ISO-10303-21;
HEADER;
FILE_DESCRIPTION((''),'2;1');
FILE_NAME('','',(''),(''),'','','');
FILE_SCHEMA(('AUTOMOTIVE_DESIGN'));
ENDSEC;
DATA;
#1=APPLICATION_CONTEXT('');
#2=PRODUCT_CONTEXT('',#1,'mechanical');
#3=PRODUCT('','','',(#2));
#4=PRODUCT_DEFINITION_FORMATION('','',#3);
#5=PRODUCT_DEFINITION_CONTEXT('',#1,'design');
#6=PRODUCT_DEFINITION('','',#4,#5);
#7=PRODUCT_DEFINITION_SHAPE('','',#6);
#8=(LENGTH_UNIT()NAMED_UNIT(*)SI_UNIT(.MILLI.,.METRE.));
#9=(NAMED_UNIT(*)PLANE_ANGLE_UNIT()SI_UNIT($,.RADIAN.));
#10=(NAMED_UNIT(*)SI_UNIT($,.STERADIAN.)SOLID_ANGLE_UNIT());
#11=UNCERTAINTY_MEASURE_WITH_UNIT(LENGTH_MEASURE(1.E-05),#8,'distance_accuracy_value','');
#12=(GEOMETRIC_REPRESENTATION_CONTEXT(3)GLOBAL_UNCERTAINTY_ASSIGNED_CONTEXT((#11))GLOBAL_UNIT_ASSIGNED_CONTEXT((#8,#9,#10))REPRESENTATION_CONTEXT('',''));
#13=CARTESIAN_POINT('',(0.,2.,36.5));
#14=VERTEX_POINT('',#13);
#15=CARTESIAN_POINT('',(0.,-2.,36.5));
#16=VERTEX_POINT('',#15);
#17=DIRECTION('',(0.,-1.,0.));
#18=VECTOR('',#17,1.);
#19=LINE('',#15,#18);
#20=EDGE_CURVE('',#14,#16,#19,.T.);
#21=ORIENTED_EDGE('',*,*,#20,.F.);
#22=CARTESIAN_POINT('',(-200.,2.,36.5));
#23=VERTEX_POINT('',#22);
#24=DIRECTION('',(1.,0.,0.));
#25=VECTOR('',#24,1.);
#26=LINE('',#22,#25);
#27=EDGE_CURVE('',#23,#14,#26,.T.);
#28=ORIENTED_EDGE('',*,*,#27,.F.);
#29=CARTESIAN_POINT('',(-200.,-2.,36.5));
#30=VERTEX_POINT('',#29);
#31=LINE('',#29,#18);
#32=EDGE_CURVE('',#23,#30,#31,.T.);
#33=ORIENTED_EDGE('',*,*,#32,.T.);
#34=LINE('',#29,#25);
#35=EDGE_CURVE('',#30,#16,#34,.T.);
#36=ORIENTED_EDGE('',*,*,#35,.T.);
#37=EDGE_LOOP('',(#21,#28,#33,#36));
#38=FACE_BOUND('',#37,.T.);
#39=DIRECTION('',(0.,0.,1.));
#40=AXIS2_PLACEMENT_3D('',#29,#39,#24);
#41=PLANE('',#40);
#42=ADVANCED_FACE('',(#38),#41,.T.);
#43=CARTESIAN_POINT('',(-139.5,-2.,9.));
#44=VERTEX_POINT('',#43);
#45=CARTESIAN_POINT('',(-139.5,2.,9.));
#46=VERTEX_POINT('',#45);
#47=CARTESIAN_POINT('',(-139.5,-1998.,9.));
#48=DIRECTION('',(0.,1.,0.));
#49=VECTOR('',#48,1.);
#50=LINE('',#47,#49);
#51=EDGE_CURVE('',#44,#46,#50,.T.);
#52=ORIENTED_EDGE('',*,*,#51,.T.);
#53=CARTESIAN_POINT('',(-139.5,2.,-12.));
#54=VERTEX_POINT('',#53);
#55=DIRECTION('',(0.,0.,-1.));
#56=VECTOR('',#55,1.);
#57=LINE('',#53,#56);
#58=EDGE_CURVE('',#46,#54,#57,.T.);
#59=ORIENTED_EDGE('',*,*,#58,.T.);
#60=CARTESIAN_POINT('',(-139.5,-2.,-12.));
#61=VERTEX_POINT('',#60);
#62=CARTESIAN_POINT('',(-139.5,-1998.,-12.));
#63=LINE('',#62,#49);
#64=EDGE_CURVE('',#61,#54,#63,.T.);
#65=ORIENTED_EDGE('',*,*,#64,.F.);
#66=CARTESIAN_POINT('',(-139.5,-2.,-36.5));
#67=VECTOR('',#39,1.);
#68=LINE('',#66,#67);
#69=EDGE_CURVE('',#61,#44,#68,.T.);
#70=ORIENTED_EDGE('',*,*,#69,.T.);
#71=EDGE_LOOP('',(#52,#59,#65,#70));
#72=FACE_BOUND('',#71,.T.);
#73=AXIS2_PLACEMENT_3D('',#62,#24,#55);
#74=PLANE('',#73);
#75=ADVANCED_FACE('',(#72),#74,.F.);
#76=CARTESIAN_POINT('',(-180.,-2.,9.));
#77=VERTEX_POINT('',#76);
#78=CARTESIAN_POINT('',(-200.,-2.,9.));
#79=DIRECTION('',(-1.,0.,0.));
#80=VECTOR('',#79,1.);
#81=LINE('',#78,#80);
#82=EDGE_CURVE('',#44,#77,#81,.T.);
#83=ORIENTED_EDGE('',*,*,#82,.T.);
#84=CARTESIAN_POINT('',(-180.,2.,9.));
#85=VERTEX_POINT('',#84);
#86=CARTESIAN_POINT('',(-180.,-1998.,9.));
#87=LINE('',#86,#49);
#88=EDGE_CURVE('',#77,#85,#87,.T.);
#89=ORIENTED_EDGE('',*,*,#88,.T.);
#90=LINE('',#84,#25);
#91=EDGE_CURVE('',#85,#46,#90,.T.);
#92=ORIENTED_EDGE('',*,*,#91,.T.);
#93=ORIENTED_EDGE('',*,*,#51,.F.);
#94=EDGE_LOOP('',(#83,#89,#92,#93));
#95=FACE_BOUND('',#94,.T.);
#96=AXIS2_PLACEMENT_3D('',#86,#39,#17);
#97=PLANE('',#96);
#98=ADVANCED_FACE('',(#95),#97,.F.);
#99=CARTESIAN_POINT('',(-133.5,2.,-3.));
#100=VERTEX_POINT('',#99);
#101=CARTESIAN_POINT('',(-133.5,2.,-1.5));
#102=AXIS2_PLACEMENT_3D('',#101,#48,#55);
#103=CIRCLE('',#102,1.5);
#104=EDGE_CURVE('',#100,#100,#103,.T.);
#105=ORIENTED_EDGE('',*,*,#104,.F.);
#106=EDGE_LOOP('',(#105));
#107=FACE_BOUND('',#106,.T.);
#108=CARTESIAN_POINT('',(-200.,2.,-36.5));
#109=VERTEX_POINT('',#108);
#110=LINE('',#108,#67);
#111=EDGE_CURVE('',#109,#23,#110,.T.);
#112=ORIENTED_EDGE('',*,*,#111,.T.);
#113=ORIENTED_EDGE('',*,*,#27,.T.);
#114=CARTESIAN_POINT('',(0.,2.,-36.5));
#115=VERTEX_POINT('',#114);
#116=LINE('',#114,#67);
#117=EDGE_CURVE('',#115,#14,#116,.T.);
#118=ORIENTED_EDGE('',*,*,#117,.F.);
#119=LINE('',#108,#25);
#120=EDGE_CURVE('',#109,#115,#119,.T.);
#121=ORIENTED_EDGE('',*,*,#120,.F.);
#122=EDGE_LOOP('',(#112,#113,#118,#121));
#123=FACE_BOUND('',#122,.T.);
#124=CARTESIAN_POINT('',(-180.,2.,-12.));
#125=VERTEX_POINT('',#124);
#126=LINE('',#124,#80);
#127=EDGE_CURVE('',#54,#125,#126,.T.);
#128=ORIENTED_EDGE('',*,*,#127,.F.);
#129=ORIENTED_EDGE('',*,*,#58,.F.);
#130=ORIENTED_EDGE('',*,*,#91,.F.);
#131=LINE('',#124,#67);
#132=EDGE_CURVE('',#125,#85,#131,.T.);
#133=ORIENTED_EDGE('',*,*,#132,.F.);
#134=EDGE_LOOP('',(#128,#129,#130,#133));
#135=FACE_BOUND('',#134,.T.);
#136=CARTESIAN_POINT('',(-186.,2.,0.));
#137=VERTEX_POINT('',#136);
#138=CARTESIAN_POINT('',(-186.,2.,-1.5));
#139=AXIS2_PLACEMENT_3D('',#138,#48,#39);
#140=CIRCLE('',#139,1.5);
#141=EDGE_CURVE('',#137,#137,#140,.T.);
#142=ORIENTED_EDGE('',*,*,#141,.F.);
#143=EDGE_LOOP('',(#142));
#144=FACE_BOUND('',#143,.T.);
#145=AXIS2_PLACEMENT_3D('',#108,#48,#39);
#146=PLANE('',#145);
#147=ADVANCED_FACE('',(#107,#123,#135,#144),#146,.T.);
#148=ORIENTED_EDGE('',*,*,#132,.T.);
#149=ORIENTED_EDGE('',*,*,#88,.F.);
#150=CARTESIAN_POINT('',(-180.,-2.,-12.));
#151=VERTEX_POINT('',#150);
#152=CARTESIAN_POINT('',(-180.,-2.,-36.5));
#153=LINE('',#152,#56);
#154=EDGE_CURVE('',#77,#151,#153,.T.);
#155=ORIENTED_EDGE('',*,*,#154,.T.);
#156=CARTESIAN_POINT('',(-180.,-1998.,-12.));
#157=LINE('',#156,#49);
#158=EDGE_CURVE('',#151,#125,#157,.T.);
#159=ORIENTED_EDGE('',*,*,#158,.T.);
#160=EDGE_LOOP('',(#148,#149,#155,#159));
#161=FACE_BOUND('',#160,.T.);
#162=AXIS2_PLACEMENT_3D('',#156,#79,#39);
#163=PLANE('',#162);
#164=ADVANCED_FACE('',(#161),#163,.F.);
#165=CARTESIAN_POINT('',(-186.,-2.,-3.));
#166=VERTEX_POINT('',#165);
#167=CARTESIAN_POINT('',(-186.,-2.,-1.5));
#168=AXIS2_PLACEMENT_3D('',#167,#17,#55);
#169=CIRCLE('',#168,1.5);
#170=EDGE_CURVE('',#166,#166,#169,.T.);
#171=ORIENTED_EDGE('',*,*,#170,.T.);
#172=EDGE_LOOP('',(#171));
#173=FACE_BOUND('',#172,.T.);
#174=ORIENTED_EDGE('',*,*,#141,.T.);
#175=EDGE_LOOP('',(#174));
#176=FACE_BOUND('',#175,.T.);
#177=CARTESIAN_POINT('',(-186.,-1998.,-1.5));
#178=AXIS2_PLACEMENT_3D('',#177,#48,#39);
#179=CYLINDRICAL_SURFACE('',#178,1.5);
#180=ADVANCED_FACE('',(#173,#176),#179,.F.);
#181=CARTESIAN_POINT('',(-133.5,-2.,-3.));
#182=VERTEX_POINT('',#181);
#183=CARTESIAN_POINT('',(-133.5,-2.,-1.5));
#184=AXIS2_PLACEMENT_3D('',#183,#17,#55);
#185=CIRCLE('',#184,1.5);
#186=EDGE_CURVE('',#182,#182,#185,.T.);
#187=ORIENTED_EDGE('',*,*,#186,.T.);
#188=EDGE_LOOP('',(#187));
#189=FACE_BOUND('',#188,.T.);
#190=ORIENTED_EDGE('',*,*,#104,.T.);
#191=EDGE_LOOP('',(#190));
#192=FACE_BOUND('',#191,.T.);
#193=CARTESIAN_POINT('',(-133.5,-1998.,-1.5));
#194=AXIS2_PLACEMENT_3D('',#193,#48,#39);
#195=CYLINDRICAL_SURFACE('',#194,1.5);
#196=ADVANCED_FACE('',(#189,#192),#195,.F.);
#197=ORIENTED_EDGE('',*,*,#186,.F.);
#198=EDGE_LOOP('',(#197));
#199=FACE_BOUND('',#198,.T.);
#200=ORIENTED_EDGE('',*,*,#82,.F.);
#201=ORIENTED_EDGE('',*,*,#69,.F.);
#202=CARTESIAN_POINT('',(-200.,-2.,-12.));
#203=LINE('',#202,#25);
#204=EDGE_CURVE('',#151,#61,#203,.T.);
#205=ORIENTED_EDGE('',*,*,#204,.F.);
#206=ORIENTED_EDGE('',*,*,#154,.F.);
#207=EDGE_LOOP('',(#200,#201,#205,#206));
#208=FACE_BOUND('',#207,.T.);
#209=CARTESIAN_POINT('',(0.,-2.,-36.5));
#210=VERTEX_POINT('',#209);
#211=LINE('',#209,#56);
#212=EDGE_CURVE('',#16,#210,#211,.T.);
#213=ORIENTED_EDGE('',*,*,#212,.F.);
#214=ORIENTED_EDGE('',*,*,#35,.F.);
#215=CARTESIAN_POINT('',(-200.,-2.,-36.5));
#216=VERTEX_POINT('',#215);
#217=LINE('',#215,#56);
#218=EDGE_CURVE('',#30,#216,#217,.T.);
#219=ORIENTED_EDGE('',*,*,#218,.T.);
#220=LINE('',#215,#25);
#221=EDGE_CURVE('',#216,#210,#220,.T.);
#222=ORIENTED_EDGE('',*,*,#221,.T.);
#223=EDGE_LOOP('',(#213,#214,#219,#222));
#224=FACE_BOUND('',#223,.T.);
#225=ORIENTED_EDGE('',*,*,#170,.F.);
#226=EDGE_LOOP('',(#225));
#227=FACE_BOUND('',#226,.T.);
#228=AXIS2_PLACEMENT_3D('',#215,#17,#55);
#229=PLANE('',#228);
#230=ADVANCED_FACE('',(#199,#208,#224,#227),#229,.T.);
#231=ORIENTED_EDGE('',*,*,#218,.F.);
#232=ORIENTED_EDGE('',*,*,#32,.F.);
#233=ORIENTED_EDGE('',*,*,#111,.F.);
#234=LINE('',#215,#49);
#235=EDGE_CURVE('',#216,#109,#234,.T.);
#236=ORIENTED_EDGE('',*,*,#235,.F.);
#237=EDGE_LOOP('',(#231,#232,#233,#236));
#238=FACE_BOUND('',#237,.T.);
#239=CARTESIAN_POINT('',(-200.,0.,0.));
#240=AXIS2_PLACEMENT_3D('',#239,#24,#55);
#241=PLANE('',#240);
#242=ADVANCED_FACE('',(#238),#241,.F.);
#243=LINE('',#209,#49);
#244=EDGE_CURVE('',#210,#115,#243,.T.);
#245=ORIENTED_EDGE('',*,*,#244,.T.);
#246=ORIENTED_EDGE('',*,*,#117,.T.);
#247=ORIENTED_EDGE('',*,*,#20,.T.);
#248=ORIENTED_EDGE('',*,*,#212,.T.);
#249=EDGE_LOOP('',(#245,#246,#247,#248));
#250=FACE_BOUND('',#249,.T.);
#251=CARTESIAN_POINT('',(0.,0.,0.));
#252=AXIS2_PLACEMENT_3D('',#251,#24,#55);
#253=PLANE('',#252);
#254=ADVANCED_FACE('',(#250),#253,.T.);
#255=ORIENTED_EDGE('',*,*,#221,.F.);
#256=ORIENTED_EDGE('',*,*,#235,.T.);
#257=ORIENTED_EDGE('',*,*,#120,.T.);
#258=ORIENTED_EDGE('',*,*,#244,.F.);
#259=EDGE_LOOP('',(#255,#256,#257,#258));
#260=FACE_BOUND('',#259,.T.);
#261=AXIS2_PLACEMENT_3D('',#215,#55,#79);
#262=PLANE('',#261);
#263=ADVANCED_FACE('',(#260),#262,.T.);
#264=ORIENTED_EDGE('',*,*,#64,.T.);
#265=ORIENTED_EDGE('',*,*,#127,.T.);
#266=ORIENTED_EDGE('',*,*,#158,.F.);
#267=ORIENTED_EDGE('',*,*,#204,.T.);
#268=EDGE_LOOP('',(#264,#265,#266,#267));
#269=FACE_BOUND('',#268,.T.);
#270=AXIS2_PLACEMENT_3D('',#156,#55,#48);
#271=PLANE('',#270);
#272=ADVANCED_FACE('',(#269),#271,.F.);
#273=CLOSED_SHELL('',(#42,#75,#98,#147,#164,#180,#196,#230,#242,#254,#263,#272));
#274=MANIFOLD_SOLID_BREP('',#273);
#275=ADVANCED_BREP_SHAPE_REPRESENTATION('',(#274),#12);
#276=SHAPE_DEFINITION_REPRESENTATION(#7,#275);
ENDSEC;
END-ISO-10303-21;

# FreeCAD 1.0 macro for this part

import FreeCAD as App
import Part
import Sketcher
from FreeCAD import Vector
Q = App.Units.Quantity

doc = App.newDocument("Part")
body = doc.addObject("PartDesign::Body", "Body")

sketch1 = doc.addObject("Sketcher::SketchObject", "Sketch")
body.addObject(sketch1)
sketch1.AttachmentSupport = (doc.YZ_Plane, [""])
sketch1.MapMode = "FlatFace"
sketch1.addGeometry([
    Part.LineSegment(Vector(2, 36.5, 0), Vector(-2, 36.5, 0)),
    Part.LineSegment(Vector(-2, 36.5, 0), Vector(-2, -36.5, 0)),
    Part.LineSegment(Vector(-2, -36.5, 0), Vector(2, -36.5, 0)),
    Part.LineSegment(Vector(2, -36.5, 0), Vector(2, 36.5, 0)),
], False)
sketch1.addConstraint([
    Sketcher.Constraint("Coincident", 0, 2, 1, 1),
    Sketcher.Constraint("Coincident", 1, 2, 2, 1),
    Sketcher.Constraint("Coincident", 2, 2, 3, 1),
    Sketcher.Constraint("Coincident", 3, 2, 0, 1),
    Sketcher.Constraint("Horizontal", 0),
    Sketcher.Constraint("Vertical", 1),
    Sketcher.Constraint("Horizontal", 2),
    Sketcher.Constraint("Vertical", 3),
    Sketcher.Constraint("Symmetric", 0, 2, 2, 2, -1, 1),
    Sketcher.Constraint("DistanceX", 0, 2, 0, 1, Q("4 mm")),
    Sketcher.Constraint("DistanceY", 1, 2, 1, 1, Q("73 mm")),
])
pad1 = doc.addObject("PartDesign::Pad", "Pad")
body.addObject(pad1)
pad1.Profile = sketch1
pad1.Length = 200
pad1.Reversed = True

sketch2 = doc.addObject("Sketcher::SketchObject", "Sketch001")
body.addObject(sketch2)
sketch2.AttachmentSupport = (doc.XZ_Plane, [""])
sketch2.MapMode = "FlatFace"
sketch2.AttachmentOffset = App.Placement(Vector(0, 0, -2), App.Rotation())
sketch2.addGeometry([
    Part.Circle(Vector(-186, -1.5, 0), Vector(0, 0, 1), 1.5),
    Part.Circle(Vector(-133.5, -1.5, 0), Vector(0, 0, 1), 1.5),
    Part.LineSegment(Vector(-180, -12, 0), Vector(-180, 9, 0)),
    Part.LineSegment(Vector(-180, 9, 0), Vector(-139.5, 9, 0)),
    Part.LineSegment(Vector(-139.5, 9, 0), Vector(-139.5, -12, 0)),
    Part.LineSegment(Vector(-139.5, -12, 0), Vector(-180, -12, 0)),
], False)
sketch2.addConstraint([
    Sketcher.Constraint("Coincident", 2, 2, 3, 1),
    Sketcher.Constraint("Coincident", 3, 2, 4, 1),
    Sketcher.Constraint("Coincident", 4, 2, 5, 1),
    Sketcher.Constraint("Coincident", 5, 2, 2, 1),
    Sketcher.Constraint("Vertical", 2),
    Sketcher.Constraint("Horizontal", 3),
    Sketcher.Constraint("Vertical", 4),
    Sketcher.Constraint("Horizontal", 5),
    Sketcher.Constraint("Equal", 0, 1),
    Sketcher.Constraint("Horizontal", 0, 3, 1, 3),
    Sketcher.Constraint("Diameter", 0, Q("3 mm")),
    Sketcher.Constraint("DistanceY", 2, 1, 2, 2, Q("21 mm")),
    Sketcher.Constraint("DistanceX", 3, 1, 3, 2, Q("40.5 mm")),
    Sketcher.Constraint("DistanceX", 0, 3, -1, 1, Q("186 mm")),
    Sketcher.Constraint("DistanceX", 2, 2, -1, 1, Q("180 mm")),
    Sketcher.Constraint("DistanceY", -1, 1, 2, 2, Q("9 mm")),
    Sketcher.Constraint("DistanceX", 3, 2, 1, 3, Q("6 mm")),
    Sketcher.Constraint("DistanceY", 0, 3, -1, 1, Q("1.5 mm")),
])
pocket1 = doc.addObject("PartDesign::Pocket", "Pocket")
body.addObject(pocket1)
pocket1.Profile = sketch2
pocket1.Length = 2000
pocket1.Reversed = True

doc.recompute()
